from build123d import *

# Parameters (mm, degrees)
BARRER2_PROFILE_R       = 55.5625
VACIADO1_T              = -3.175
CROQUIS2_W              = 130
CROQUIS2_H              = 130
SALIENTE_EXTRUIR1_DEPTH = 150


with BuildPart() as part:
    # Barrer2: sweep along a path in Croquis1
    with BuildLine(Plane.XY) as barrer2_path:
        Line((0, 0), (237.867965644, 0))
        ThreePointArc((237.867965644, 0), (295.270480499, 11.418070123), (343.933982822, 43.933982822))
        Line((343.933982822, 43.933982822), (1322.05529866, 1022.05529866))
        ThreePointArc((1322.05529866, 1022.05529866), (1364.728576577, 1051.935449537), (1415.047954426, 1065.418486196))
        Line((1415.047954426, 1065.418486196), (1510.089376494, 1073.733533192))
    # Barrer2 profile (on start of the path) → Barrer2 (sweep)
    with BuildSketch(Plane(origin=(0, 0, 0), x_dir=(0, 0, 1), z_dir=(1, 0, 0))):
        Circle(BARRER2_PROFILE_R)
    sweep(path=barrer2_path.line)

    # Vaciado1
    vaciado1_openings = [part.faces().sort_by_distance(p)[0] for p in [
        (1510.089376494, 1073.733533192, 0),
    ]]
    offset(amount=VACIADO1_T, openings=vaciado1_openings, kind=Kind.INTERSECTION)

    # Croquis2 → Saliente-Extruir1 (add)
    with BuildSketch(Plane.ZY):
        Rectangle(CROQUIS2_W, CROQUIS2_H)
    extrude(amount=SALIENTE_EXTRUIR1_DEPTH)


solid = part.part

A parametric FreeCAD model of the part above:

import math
import FreeCAD as App
import Part
import Sketcher

V = App.Vector
Q = App.Units.Quantity


def faces_at(feature, points):
    """Names of the faces that lie closest to the given points."""
    faces = feature.Shape.Faces
    near = lambda p: min(range(len(faces)), key=lambda i: faces[i].distToShape(Part.Vertex(*p))[0])
    return sorted({f"Face{near(p) + 1}" for p in points})


def add_polygon(sketch, points):
    """Adds a closed chain of lines whose ends are joined by coincident constraints."""
    first, n = sketch.GeometryCount, len(points)
    for a, b in zip(points, points[1:] + points[:1]):
        sketch.addGeometry(Part.LineSegment(App.Vector(*a, 0), App.Vector(*b, 0)), False)
    for i in range(n):
        sketch.addConstraint(Sketcher.Constraint("Coincident", first + i, 2, first + (i + 1) % n, 1))

doc = App.newDocument("Part")
params = doc.addObject("Spreadsheet::Sheet", "Params")
for row, (alias, value) in enumerate([
    ("sketch2_radius", "150 mm"),
    ("thickness_wall", "3.175 mm"),
    ("sketch3_width", "130 mm"),
    ("pad1_length", "150 mm"),
], start=1):
    params.set(f"A{row}", alias)
    params.set(f"B{row}", "=" + value)
    params.setAlias(f"B{row}", alias)

body = doc.addObject("PartDesign::Body", "Body")

sketch1 = body.newObject("Sketcher::SketchObject", "Sketch")
sketch1.AttachmentSupport = (doc.getObject("YZ_Plane"), [""])
sketch1.MapMode = "FlatFace"
sketch1.addGeometry(Part.Circle(V(0, 0, 0), V(0, 0, 1), 56), False)
sketch1.addConstraint(Sketcher.Constraint("Coincident", 0, 3, -1, 1))
sketch1.addConstraint(Sketcher.Constraint("Diameter", 0, Q("111.125 mm")))

sketch2 = body.newObject("Sketcher::SketchObject", "Sketch001")
sketch2.AttachmentSupport = (doc.getObject("XY_Plane"), [""])
sketch2.MapMode = "FlatFace"
sketch2.addGeometry(Part.LineSegment(V(0, 0, 0), V(238, 0, 0)), False)
sketch2.addGeometry(Part.ArcOfCircle(Part.Circle(V(238, 150, 0), V(0, 0, 1), 150), math.radians(-90), math.radians(-45)), False)
sketch2.addGeometry(Part.LineSegment(V(344, 44, 0), V(1322, 1022, 0)), False)
sketch2.addGeometry(Part.ArcOfCircle(Part.Circle(V(1428, 916, 0), V(0, 0, 1), 150), math.radians(95), math.radians(135)), False)
sketch2.addGeometry(Part.LineSegment(V(1415, 1065, 0), V(1510, 1074, 0)), False)
sketch2.addConstraint(Sketcher.Constraint("Tangent", 0, 2, 1, 1))
sketch2.addConstraint(Sketcher.Constraint("Tangent", 1, 2, 2, 1))
sketch2.addConstraint(Sketcher.Constraint("Tangent", 2, 2, 3, 2))
sketch2.addConstraint(Sketcher.Constraint("Tangent", 3, 1, 4, 1))
sketch2.addConstraint(Sketcher.Constraint("Horizontal", 0))
sketch2.addConstraint(Sketcher.Constraint("Coincident", 0, 1, -1, 1))
sketch2.addConstraint(Sketcher.Constraint("Equal", 1, 3))
sketch2.addConstraint(Sketcher.Constraint("Radius", 1, Q("150 mm")))
sketch2.addConstraint(Sketcher.Constraint("Angle", 2, Q("45 deg")))
sketch2.addConstraint(Sketcher.Constraint("Angle", 4, Q("5 deg")))
sketch2.addConstraint(Sketcher.Constraint("DistanceX", -1, 1, 2, 2, Q("1322.055299 mm")))
sketch2.addConstraint(Sketcher.Constraint("DistanceY", -1, 1, 2, 2, Q("1022.055299 mm")))
sketch2.addConstraint(Sketcher.Constraint("DistanceX", 3, 3, 4, 2, Q("81.968061 mm")))
sketch2.setExpression("Constraints[7]", "Params.sketch2_radius")
doc.recompute()

additivepipe = body.newObject("PartDesign::AdditivePipe", "AdditivePipe")
additivepipe.Profile = sketch1
additivepipe.Spine = (sketch2, ["Edge1", "Edge2", "Edge3", "Edge4", "Edge5"])
doc.recompute()

thickness = body.newObject("PartDesign::Thickness", "Thickness")
thickness.Base = (additivepipe, faces_at(additivepipe, [(1510.089, 1073.734, 0)]))
thickness.setExpression("Value", "Params.thickness_wall")
thickness.Reversed = True
thickness.Join = "Intersection"

sketch3 = body.newObject("Sketcher::SketchObject", "Sketch002")
sketch3.AttachmentSupport = (doc.getObject("YZ_Plane"), [""])
sketch3.MapMode = "FlatFace"
add_polygon(sketch3, [(65, -65), (-65, -65), (-65, 65), (65, 65)])
sketch3.addConstraint(Sketcher.Constraint("Horizontal", 0))
sketch3.addConstraint(Sketcher.Constraint("Vertical", 1))
sketch3.addConstraint(Sketcher.Constraint("Horizontal", 2))
sketch3.addConstraint(Sketcher.Constraint("Vertical", 3))
sketch3.addConstraint(Sketcher.Constraint("Symmetric", 0, 2, 2, 2, -1, 1))
sketch3.addConstraint(Sketcher.Constraint("Equal", 2, 1))
sketch3.addConstraint(Sketcher.Constraint("DistanceX", 0, 2, 0, 1, Q("130 mm")))
sketch3.setExpression("Constraints[10]", "Params.sketch3_width")
pad1 = body.newObject("PartDesign::Pad", "Pad")
pad1.Profile = sketch3
pad1.setExpression("Length", "Params.pad1_length")
pad1.Reversed = True

doc.recompute()
